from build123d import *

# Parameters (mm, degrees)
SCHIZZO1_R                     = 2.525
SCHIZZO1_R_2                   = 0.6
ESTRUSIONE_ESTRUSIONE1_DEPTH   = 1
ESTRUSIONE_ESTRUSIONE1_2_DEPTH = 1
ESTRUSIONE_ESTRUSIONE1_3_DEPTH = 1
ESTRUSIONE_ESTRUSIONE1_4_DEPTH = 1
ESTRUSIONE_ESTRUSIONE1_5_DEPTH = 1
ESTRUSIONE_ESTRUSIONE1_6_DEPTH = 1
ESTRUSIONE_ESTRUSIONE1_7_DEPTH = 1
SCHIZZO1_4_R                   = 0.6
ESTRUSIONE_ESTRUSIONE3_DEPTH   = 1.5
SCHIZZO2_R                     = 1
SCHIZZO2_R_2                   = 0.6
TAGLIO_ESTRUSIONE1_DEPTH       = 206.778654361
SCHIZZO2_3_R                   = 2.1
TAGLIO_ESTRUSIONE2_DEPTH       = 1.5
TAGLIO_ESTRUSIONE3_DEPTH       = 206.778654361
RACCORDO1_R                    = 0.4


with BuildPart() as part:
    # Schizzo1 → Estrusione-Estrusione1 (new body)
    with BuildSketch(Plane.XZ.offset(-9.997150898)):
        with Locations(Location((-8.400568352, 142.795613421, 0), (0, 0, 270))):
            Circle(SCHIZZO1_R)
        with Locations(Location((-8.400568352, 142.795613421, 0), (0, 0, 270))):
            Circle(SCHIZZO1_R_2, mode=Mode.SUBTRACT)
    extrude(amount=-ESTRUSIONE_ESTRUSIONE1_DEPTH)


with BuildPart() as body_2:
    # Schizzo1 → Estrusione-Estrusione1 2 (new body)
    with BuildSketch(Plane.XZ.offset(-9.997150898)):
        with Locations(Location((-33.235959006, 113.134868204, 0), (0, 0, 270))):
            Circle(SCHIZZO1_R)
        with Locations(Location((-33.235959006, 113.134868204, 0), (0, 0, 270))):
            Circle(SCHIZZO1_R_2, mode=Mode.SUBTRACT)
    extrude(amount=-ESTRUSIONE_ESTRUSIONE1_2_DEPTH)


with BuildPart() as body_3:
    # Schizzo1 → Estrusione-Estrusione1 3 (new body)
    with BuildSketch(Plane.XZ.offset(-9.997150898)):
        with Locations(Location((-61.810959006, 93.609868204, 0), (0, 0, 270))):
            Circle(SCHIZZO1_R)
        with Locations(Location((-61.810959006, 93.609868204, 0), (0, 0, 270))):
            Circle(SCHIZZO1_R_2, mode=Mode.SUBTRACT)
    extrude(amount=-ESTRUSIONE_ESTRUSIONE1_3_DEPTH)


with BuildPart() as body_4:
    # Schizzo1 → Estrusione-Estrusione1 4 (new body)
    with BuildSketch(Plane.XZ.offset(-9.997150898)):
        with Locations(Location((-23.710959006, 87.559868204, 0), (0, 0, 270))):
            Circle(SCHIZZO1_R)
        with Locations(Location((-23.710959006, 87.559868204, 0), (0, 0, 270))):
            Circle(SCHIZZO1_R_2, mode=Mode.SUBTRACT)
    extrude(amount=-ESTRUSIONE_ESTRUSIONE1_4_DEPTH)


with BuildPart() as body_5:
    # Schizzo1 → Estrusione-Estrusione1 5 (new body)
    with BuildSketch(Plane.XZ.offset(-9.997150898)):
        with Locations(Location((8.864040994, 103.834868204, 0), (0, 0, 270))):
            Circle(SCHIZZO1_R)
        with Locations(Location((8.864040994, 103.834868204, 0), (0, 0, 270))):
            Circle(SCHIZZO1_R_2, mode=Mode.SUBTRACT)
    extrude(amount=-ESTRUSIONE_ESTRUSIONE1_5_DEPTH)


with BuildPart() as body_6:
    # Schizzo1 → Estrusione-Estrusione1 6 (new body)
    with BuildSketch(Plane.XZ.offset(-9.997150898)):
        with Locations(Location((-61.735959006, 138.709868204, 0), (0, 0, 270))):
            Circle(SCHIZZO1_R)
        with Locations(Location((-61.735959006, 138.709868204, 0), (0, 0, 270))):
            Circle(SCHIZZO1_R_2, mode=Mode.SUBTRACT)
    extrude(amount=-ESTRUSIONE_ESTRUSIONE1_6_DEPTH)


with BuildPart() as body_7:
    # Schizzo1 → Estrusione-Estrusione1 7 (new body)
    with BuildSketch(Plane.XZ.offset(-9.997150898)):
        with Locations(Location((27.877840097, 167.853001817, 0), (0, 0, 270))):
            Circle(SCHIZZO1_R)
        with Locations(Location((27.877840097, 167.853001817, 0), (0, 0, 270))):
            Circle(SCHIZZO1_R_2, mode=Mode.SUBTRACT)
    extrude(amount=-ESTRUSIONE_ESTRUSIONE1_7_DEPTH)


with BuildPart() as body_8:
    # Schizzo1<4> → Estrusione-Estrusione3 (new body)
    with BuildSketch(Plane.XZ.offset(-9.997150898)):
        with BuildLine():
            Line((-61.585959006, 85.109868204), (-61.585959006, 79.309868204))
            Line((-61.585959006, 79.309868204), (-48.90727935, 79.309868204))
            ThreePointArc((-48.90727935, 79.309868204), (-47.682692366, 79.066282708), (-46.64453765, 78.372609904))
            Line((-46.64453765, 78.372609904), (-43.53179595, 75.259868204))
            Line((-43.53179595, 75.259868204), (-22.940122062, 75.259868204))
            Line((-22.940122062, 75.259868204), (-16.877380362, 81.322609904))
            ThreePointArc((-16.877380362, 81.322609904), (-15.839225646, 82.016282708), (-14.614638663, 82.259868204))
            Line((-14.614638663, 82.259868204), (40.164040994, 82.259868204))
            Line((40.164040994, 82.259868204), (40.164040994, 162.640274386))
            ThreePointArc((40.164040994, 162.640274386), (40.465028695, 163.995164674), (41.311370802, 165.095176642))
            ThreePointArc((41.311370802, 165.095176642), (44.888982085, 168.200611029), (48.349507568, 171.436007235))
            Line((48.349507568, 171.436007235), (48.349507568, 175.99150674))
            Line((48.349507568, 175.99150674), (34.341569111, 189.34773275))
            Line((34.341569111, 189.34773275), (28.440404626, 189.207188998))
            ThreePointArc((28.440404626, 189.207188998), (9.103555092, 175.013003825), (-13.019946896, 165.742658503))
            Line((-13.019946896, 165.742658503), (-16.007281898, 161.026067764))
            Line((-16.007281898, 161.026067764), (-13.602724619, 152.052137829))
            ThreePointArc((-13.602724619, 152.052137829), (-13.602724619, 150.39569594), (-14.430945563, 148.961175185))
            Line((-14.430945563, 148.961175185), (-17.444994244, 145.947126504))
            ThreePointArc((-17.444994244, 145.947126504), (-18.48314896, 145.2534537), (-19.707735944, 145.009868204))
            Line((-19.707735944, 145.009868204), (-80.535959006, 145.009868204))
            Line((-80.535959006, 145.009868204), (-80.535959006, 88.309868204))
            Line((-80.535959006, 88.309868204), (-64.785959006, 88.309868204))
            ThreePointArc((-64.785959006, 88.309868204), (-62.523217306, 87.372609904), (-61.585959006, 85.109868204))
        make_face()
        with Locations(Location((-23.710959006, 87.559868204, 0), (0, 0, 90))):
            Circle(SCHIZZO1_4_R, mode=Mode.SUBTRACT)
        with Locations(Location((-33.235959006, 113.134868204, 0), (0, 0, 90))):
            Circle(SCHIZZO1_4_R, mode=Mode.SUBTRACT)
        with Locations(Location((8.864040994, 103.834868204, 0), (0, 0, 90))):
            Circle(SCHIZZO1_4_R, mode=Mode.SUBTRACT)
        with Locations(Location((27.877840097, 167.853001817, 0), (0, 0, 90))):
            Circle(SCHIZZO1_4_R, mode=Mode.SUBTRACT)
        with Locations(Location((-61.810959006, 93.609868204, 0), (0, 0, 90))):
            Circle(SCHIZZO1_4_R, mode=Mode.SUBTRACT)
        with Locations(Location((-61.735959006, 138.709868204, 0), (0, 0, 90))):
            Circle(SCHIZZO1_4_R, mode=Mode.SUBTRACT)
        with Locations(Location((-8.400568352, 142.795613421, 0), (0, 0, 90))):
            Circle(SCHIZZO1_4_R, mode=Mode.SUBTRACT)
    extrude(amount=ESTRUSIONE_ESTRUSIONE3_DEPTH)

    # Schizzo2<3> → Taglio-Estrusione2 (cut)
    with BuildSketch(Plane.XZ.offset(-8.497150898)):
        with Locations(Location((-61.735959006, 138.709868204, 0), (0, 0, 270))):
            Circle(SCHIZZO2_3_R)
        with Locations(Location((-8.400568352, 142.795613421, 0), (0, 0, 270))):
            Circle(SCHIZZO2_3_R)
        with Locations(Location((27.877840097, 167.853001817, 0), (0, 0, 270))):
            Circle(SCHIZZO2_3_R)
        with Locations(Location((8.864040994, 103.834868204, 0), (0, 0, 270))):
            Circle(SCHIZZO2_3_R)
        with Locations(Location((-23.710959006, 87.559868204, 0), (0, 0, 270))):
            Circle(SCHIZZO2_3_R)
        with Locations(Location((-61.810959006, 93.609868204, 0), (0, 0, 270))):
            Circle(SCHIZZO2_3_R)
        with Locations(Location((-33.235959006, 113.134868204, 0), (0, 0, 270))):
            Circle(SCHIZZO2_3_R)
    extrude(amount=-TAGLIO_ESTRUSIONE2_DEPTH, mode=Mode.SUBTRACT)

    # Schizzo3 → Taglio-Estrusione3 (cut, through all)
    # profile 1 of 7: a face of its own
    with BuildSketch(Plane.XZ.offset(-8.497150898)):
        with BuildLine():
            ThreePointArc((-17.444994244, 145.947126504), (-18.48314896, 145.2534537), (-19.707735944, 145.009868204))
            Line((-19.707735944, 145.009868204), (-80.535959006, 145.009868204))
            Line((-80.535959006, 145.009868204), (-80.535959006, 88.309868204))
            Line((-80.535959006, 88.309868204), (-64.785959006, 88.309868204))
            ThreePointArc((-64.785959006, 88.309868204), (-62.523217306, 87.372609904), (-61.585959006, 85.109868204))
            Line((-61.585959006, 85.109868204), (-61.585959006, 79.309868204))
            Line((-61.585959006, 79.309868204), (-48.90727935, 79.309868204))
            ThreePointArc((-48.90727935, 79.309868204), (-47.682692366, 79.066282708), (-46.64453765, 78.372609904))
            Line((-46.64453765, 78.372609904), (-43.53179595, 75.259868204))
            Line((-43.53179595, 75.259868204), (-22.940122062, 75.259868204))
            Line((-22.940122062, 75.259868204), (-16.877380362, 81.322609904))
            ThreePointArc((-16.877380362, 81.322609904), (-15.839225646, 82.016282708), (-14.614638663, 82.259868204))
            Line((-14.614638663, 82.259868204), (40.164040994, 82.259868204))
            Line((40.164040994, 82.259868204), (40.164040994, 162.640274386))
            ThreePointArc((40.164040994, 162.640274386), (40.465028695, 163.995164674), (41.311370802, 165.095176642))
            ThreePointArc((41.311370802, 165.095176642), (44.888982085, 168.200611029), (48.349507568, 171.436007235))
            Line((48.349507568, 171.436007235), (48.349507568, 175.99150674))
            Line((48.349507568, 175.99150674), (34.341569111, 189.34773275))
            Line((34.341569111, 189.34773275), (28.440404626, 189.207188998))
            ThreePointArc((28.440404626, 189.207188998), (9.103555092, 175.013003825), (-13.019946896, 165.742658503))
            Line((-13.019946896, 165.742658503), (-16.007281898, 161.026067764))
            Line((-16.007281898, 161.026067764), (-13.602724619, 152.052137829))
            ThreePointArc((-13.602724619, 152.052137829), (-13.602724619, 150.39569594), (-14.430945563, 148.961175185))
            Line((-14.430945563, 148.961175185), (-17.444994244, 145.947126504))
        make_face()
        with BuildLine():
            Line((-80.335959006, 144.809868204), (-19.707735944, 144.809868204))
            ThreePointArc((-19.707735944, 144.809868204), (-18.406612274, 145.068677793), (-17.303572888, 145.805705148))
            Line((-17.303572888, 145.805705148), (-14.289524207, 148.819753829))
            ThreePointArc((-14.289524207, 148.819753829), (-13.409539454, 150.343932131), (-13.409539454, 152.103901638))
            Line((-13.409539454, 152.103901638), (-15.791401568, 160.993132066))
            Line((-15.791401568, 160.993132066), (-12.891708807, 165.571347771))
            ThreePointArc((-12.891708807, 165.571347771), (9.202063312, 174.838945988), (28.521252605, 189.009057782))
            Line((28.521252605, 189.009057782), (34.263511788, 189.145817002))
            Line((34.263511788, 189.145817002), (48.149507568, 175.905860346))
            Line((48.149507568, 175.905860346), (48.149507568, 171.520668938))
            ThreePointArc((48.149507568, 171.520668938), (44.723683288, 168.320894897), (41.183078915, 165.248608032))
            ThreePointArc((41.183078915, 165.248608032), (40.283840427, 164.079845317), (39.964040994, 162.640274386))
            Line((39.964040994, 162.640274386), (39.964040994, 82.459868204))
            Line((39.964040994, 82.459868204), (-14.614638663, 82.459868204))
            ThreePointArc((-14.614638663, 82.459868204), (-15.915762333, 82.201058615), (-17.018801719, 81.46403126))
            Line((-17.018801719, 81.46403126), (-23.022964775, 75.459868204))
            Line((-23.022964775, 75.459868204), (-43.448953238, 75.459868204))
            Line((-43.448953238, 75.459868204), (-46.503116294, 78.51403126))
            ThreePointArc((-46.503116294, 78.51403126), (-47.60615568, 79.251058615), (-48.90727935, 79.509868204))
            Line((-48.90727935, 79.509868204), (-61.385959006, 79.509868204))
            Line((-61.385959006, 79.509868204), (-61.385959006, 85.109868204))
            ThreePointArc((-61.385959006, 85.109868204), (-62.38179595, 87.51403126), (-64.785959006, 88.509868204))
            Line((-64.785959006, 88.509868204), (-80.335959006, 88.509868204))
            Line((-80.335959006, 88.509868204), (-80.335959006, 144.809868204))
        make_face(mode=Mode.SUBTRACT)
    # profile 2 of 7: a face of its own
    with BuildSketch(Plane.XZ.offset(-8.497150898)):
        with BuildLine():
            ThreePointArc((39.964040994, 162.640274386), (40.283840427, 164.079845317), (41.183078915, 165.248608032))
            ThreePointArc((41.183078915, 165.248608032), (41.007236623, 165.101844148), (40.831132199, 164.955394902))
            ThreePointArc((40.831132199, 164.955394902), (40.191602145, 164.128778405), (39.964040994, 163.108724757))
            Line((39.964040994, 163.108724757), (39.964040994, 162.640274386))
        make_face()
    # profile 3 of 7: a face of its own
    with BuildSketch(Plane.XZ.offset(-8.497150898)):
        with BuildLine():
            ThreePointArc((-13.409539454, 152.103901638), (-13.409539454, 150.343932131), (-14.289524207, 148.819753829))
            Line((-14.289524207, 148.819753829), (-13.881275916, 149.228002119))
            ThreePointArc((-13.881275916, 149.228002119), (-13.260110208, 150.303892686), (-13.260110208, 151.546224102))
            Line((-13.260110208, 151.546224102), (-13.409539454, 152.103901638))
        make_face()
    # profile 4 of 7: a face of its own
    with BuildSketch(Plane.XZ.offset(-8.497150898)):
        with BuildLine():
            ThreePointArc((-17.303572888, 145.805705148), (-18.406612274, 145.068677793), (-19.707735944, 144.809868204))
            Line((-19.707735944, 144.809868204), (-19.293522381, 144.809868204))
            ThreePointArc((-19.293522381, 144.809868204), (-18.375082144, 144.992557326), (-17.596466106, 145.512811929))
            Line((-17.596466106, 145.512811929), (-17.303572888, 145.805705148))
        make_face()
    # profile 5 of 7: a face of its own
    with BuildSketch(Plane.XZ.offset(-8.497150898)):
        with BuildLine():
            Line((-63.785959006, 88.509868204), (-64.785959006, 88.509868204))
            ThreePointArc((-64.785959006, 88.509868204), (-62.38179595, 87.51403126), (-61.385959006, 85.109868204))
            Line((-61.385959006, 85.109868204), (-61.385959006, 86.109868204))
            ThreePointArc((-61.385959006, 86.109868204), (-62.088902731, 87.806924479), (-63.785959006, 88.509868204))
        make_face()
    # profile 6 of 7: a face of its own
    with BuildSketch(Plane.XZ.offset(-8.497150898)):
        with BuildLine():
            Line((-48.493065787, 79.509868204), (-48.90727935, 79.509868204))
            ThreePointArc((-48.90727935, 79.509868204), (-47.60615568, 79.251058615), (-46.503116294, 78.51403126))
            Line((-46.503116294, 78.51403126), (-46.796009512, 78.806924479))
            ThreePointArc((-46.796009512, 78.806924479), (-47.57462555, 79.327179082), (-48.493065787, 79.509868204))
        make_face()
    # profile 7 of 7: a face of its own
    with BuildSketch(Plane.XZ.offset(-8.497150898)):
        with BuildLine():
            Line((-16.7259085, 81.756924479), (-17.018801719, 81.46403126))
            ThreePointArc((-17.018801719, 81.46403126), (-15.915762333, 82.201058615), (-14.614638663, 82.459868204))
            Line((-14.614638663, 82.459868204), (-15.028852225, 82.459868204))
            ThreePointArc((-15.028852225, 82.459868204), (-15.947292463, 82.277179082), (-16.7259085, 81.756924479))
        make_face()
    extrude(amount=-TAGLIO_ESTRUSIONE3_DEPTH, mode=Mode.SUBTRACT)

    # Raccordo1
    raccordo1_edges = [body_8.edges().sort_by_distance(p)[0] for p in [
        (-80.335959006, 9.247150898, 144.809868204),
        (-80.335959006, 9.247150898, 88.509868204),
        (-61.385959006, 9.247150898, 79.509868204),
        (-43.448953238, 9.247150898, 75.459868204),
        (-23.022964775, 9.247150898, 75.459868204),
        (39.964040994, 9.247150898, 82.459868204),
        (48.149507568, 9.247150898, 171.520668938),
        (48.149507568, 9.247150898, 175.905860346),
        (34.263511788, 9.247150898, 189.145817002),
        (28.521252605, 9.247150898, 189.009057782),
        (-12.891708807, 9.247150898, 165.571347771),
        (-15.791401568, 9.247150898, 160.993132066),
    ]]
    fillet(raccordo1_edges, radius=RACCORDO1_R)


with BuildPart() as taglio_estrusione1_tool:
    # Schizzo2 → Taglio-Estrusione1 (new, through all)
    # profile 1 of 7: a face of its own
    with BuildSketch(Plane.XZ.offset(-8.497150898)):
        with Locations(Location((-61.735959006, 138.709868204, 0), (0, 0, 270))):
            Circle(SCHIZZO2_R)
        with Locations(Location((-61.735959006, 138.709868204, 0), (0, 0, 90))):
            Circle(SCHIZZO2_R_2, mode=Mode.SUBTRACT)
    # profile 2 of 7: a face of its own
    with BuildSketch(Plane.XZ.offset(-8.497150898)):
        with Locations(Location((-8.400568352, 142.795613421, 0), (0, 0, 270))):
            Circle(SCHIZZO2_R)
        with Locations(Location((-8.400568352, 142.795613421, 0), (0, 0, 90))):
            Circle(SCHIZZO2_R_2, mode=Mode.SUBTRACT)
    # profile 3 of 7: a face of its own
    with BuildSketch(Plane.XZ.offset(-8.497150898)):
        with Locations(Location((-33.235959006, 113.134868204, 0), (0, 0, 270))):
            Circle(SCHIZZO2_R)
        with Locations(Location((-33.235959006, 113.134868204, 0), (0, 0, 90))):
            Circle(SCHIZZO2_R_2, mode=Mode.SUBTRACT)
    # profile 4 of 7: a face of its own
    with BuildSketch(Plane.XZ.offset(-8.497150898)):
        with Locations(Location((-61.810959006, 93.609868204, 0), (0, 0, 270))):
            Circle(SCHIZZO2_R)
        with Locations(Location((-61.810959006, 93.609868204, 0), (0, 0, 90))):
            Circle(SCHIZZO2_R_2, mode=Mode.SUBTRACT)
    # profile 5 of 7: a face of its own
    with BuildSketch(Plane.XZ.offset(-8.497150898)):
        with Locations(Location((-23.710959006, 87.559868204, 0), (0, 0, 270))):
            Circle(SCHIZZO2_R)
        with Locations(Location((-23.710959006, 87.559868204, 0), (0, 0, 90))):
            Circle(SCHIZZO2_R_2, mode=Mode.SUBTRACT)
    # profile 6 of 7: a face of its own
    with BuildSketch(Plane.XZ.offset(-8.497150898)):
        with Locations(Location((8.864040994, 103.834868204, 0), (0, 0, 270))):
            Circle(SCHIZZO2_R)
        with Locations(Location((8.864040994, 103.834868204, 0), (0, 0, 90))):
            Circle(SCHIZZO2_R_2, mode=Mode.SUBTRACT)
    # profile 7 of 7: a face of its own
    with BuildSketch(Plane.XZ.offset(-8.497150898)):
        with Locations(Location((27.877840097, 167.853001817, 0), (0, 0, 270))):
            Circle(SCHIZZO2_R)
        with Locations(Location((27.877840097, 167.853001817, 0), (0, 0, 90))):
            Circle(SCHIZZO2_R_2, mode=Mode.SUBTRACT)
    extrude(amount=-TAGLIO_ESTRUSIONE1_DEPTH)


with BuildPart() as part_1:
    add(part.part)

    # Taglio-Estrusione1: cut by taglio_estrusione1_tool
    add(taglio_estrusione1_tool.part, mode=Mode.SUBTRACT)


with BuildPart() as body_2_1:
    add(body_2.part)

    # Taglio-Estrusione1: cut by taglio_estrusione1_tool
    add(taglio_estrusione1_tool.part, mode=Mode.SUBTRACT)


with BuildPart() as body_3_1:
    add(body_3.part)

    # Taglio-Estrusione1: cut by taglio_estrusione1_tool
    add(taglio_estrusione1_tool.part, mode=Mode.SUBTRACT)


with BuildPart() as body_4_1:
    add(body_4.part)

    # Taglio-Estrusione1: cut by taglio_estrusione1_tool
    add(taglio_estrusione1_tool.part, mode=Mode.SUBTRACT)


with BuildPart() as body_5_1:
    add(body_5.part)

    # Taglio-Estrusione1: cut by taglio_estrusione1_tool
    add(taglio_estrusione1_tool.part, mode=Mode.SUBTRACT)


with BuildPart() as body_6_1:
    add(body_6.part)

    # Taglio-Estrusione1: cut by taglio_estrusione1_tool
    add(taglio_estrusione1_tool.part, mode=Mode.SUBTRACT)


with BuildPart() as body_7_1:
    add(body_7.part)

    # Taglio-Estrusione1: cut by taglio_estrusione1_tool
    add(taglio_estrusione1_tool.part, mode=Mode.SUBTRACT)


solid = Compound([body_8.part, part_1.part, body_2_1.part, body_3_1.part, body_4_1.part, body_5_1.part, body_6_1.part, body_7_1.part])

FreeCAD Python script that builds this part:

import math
import FreeCAD as App
import Part
import Sketcher
Q = App.Units.Quantity


def edges_at(feature, points):
    """Names of the edges that pass closest to the given points."""
    edges = feature.Shape.Edges
    near = lambda p: min(range(len(edges)), key=lambda i: edges[i].distToShape(Part.Vertex(*p))[0])
    return sorted({f"Edge{near(p) + 1}" for p in points})

doc = App.newDocument("Part")
body = doc.addObject("PartDesign::Body", "Body")

sketch1 = body.newObject("Sketcher::SketchObject", "Sketch")
sketch1.AttachmentSupport = (doc.getObject("XZ_Plane"), [""])
sketch1.MapMode = "FlatFace"
sketch1.AttachmentOffset = App.Placement(App.Vector(0, 0, -9.997151), App.Rotation())
sketch1.addGeometry([
    Part.Circle(App.Vector(-8.4, 142.8, 0), App.Vector(0, 0, 1), 2.5),
    Part.Circle(App.Vector(-8.4, 142.8, 0), App.Vector(0, 0, 1), 0.6),
], False)
sketch1.addConstraint([
    Sketcher.Constraint("Coincident", 1, 3, 0, 3),
    Sketcher.Constraint("Diameter", 1, 1.2),
    Sketcher.Constraint("Diameter", 0, 5.05),
    Sketcher.Constraint("DistanceX", 0, 3, -1, 1, 8.400568),
    Sketcher.Constraint("DistanceY", -1, 1, 0, 3, 142.795613),
])
pad1 = body.newObject("PartDesign::Pad", "Pad")
pad1.Profile = sketch1
pad1.Length = 1
pad1.Reversed = True
body2 = doc.addObject("PartDesign::Body", "Body001")

sketch2 = body2.newObject("Sketcher::SketchObject", "Sketch001")
sketch2.AttachmentSupport = (doc.getObject("XZ_Plane001"), [""])
sketch2.MapMode = "FlatFace"
sketch2.AttachmentOffset = App.Placement(App.Vector(0, 0, -9.997151), App.Rotation())
sketch2.addGeometry([
    Part.Circle(App.Vector(-33.2, 113.1, 0), App.Vector(0, 0, 1), 2.5),
    Part.Circle(App.Vector(-33.2, 113.1, 0), App.Vector(0, 0, 1), 0.6),
], False)
sketch2.addConstraint([
    Sketcher.Constraint("Coincident", 1, 3, 0, 3),
    Sketcher.Constraint("Diameter", 1, 1.2),
    Sketcher.Constraint("Diameter", 0, 5.05),
    Sketcher.Constraint("DistanceX", 0, 3, -1, 1, 33.235959),
    Sketcher.Constraint("DistanceY", -1, 1, 0, 3, 113.134868),
])
pad2 = body2.newObject("PartDesign::Pad", "Pad001")
pad2.Profile = sketch2
pad2.Length = 1
pad2.Reversed = True
body3 = doc.addObject("PartDesign::Body", "Body002")

sketch3 = body3.newObject("Sketcher::SketchObject", "Sketch002")
sketch3.AttachmentSupport = (doc.getObject("XZ_Plane002"), [""])
sketch3.MapMode = "FlatFace"
sketch3.AttachmentOffset = App.Placement(App.Vector(0, 0, -9.997151), App.Rotation())
sketch3.addGeometry([
    Part.Circle(App.Vector(-61.8, 93.6, 0), App.Vector(0, 0, 1), 2.5),
    Part.Circle(App.Vector(-61.8, 93.6, 0), App.Vector(0, 0, 1), 0.6),
], False)
sketch3.addConstraint([
    Sketcher.Constraint("Coincident", 1, 3, 0, 3),
    Sketcher.Constraint("Diameter", 1, 1.2),
    Sketcher.Constraint("Diameter", 0, 5.05),
    Sketcher.Constraint("DistanceX", 0, 3, -1, 1, 61.810959),
    Sketcher.Constraint("DistanceY", -1, 1, 0, 3, 93.609868),
])
pad3 = body3.newObject("PartDesign::Pad", "Pad002")
pad3.Profile = sketch3
pad3.Length = 1
pad3.Reversed = True
body4 = doc.addObject("PartDesign::Body", "Body003")

sketch4 = body4.newObject("Sketcher::SketchObject", "Sketch003")
sketch4.AttachmentSupport = (doc.getObject("XZ_Plane003"), [""])
sketch4.MapMode = "FlatFace"
sketch4.AttachmentOffset = App.Placement(App.Vector(0, 0, -9.997151), App.Rotation())
sketch4.addGeometry([
    Part.Circle(App.Vector(-23.7, 87.6, 0), App.Vector(0, 0, 1), 2.5),
    Part.Circle(App.Vector(-23.7, 87.6, 0), App.Vector(0, 0, 1), 0.6),
], False)
sketch4.addConstraint([
    Sketcher.Constraint("Coincident", 1, 3, 0, 3),
    Sketcher.Constraint("Diameter", 1, 1.2),
    Sketcher.Constraint("Diameter", 0, 5.05),
    Sketcher.Constraint("DistanceX", 0, 3, -1, 1, 23.710959),
    Sketcher.Constraint("DistanceY", -1, 1, 0, 3, 87.559868),
])
pad4 = body4.newObject("PartDesign::Pad", "Pad003")
pad4.Profile = sketch4
pad4.Length = 1
pad4.Reversed = True
body5 = doc.addObject("PartDesign::Body", "Body004")

sketch5 = body5.newObject("Sketcher::SketchObject", "Sketch004")
sketch5.AttachmentSupport = (doc.getObject("XZ_Plane004"), [""])
sketch5.MapMode = "FlatFace"
sketch5.AttachmentOffset = App.Placement(App.Vector(0, 0, -9.997151), App.Rotation())
sketch5.addGeometry([
    Part.Circle(App.Vector(8.9, 103.8, 0), App.Vector(0, 0, 1), 2.5),
    Part.Circle(App.Vector(8.9, 103.8, 0), App.Vector(0, 0, 1), 0.6),
], False)
sketch5.addConstraint([
    Sketcher.Constraint("Coincident", 1, 3, 0, 3),
    Sketcher.Constraint("Diameter", 1, 1.2),
    Sketcher.Constraint("Diameter", 0, 5.05),
    Sketcher.Constraint("DistanceX", -1, 1, 0, 3, 8.864041),
    Sketcher.Constraint("DistanceY", -1, 1, 0, 3, 103.834868),
])
pad5 = body5.newObject("PartDesign::Pad", "Pad004")
pad5.Profile = sketch5
pad5.Length = 1
pad5.Reversed = True
body6 = doc.addObject("PartDesign::Body", "Body005")

sketch6 = body6.newObject("Sketcher::SketchObject", "Sketch005")
sketch6.AttachmentSupport = (doc.getObject("XZ_Plane005"), [""])
sketch6.MapMode = "FlatFace"
sketch6.AttachmentOffset = App.Placement(App.Vector(0, 0, -9.997151), App.Rotation())
sketch6.addGeometry([
    Part.Circle(App.Vector(-61.7, 138.7, 0), App.Vector(0, 0, 1), 2.5),
    Part.Circle(App.Vector(-61.7, 138.7, 0), App.Vector(0, 0, 1), 0.6),
], False)
sketch6.addConstraint([
    Sketcher.Constraint("Coincident", 1, 3, 0, 3),
    Sketcher.Constraint("Diameter", 1, 1.2),
    Sketcher.Constraint("Diameter", 0, 5.05),
    Sketcher.Constraint("DistanceX", 0, 3, -1, 1, 61.735959),
    Sketcher.Constraint("DistanceY", -1, 1, 0, 3, 138.709868),
])
pad6 = body6.newObject("PartDesign::Pad", "Pad005")
pad6.Profile = sketch6
pad6.Length = 1
pad6.Reversed = True
body7 = doc.addObject("PartDesign::Body", "Body006")

sketch7 = body7.newObject("Sketcher::SketchObject", "Sketch006")
sketch7.AttachmentSupport = (doc.getObject("XZ_Plane006"), [""])
sketch7.MapMode = "FlatFace"
sketch7.AttachmentOffset = App.Placement(App.Vector(0, 0, -9.997151), App.Rotation())
sketch7.addGeometry([
    Part.Circle(App.Vector(27.9, 167.9, 0), App.Vector(0, 0, 1), 2.5),
    Part.Circle(App.Vector(27.9, 167.9, 0), App.Vector(0, 0, 1), 0.6),
], False)
sketch7.addConstraint([
    Sketcher.Constraint("Coincident", 1, 3, 0, 3),
    Sketcher.Constraint("Diameter", 1, 1.2),
    Sketcher.Constraint("Diameter", 0, 5.05),
    Sketcher.Constraint("DistanceY", -1, 1, 0, 3, 167.853002),
    Sketcher.Constraint("DistanceX", -1, 1, 0, 3, 27.87784),
])
pad7 = body7.newObject("PartDesign::Pad", "Pad006")
pad7.Profile = sketch7
pad7.Length = 1
pad7.Reversed = True
body8 = doc.addObject("PartDesign::Body", "Body007")

sketch8 = body8.newObject("Sketcher::SketchObject", "Sketch007")
sketch8.AttachmentSupport = (doc.getObject("XZ_Plane007"), [""])
sketch8.MapMode = "FlatFace"
sketch8.AttachmentOffset = App.Placement(App.Vector(0, 0, -9.997151), App.Rotation())
sketch8.addGeometry([
    Part.LineSegment(App.Vector(-61.6, 85.1, 0), App.Vector(-61.6, 79.3, 0)),
    Part.LineSegment(App.Vector(-61.6, 79.3, 0), App.Vector(-48.9, 79.3, 0)),
    Part.ArcOfCircle(Part.Circle(App.Vector(-48.9, 76.1, 0), App.Vector(0, 0, 1), 3.2), math.radians(45), math.radians(90)),
    Part.LineSegment(App.Vector(-46.6, 78.4, 0), App.Vector(-43.5, 75.3, 0)),
    Part.LineSegment(App.Vector(-43.5, 75.3, 0), App.Vector(-22.9, 75.3, 0)),
    Part.LineSegment(App.Vector(-22.9, 75.3, 0), App.Vector(-16.9, 81.3, 0)),
    Part.ArcOfCircle(Part.Circle(App.Vector(-14.6, 79.1, 0), App.Vector(0, 0, 1), 3.2), math.radians(90), math.radians(135)),
    Part.LineSegment(App.Vector(-14.6, 82.3, 0), App.Vector(40.2, 82.3, 0)),
    Part.LineSegment(App.Vector(40.2, 82.3, 0), App.Vector(40.2, 162.6, 0)),
    Part.ArcOfCircle(Part.Circle(App.Vector(43.4, 162.6, 0), App.Vector(0, 0, 1), 3.2), math.radians(130), math.radians(180)),
    Part.ArcOfCircle(Part.Circle(App.Vector(-41, 263.5, 0), App.Vector(0, 0, 1), 128.3), math.radians(-50.1), math.radians(-45.87)),
    Part.LineSegment(App.Vector(48.3, 171.4, 0), App.Vector(48.3, 176, 0)),
    Part.LineSegment(App.Vector(48.3, 176, 0), App.Vector(34.3, 189.3, 0)),
    Part.LineSegment(App.Vector(34.3, 189.3, 0), App.Vector(28.4, 189.2, 0)),
    Part.ArcOfCircle(Part.Circle(App.Vector(-41, 263.5, 0), App.Vector(0, 0, 1), 101.7), math.radians(-74), math.radians(-47)),
    Part.LineSegment(App.Vector(-13, 165.7, 0), App.Vector(-16, 161, 0)),
    Part.LineSegment(App.Vector(-16, 161, 0), App.Vector(-13.6, 152.1, 0)),
    Part.ArcOfCircle(Part.Circle(App.Vector(-16.7, 151.2, 0), App.Vector(0, 0, 1), 3.2), math.radians(-45), math.radians(15)),
    Part.LineSegment(App.Vector(-14.4, 149, 0), App.Vector(-17.4, 145.9, 0)),
    Part.ArcOfCircle(Part.Circle(App.Vector(-19.7, 148.2, 0), App.Vector(0, 0, 1), 3.2), math.radians(-90), math.radians(-45)),
    Part.LineSegment(App.Vector(-19.7, 145, 0), App.Vector(-80.5, 145, 0)),
    Part.LineSegment(App.Vector(-80.5, 145, 0), App.Vector(-80.5, 88.3, 0)),
    Part.LineSegment(App.Vector(-80.5, 88.3, 0), App.Vector(-64.8, 88.3, 0)),
    Part.ArcOfCircle(Part.Circle(App.Vector(-64.8, 85.1, 0), App.Vector(0, 0, 1), 3.2), math.radians(0), math.radians(90)),
    Part.Circle(App.Vector(-61.8, 93.6, 0), App.Vector(0, 0, 1), 0.6),
    Part.Circle(App.Vector(-23.7, 87.6, 0), App.Vector(0, 0, 1), 0.6),
    Part.Circle(App.Vector(-33.2, 113.1, 0), App.Vector(0, 0, 1), 0.6),
    Part.Circle(App.Vector(8.9, 103.8, 0), App.Vector(0, 0, 1), 0.6),
    Part.Circle(App.Vector(-61.7, 138.7, 0), App.Vector(0, 0, 1), 0.6),
    Part.Circle(App.Vector(-8.4, 142.8, 0), App.Vector(0, 0, 1), 0.6),
    Part.Circle(App.Vector(27.9, 167.9, 0), App.Vector(0, 0, 1), 0.6),
], False)
sketch8.addConstraint([
    Sketcher.Constraint("Coincident", 0, 2, 1, 1),
    Sketcher.Constraint("Tangent", 1, 2, 2, 2),
    Sketcher.Constraint("Tangent", 2, 1, 3, 1),
    Sketcher.Constraint("Coincident", 3, 2, 4, 1),
    Sketcher.Constraint("Coincident", 4, 2, 5, 1),
    Sketcher.Constraint("Tangent", 5, 2, 6, 2),
    Sketcher.Constraint("Tangent", 6, 1, 7, 1),
    Sketcher.Constraint("Coincident", 7, 2, 8, 1),
    Sketcher.Constraint("Tangent", 8, 2, 9, 2),
    Sketcher.Constraint("Tangent", 9, 1, 10, 1),
    Sketcher.Constraint("Coincident", 10, 2, 11, 1),
    Sketcher.Constraint("Coincident", 11, 2, 12, 1),
    Sketcher.Constraint("Coincident", 12, 2, 13, 1),
    Sketcher.Constraint("Coincident", 13, 2, 14, 2),
    Sketcher.Constraint("Coincident", 14, 1, 15, 1),
    Sketcher.Constraint("Coincident", 15, 2, 16, 1),
    Sketcher.Constraint("Tangent", 16, 2, 17, 2),
    Sketcher.Constraint("Tangent", 17, 1, 18, 1),
    Sketcher.Constraint("Tangent", 18, 2, 19, 2),
    Sketcher.Constraint("Tangent", 19, 1, 20, 1),
    Sketcher.Constraint("Coincident", 20, 2, 21, 1),
    Sketcher.Constraint("Coincident", 21, 2, 22, 1),
    Sketcher.Constraint("Tangent", 22, 2, 23, 2),
    Sketcher.Constraint("Tangent", 23, 1, 0, 1),
    Sketcher.Constraint("Vertical", 0),
    Sketcher.Constraint("Horizontal", 1),
    Sketcher.Constraint("Horizontal", 4),
    Sketcher.Constraint("Horizontal", 7),
    Sketcher.Constraint("Vertical", 8),
    Sketcher.Constraint("Vertical", 11),
    Sketcher.Constraint("Horizontal", 20),
    Sketcher.Constraint("Vertical", 21),
    Sketcher.Constraint("Horizontal", 22),
    Sketcher.Constraint("Coincident", 14, 3, 10, 3),
    Sketcher.Constraint("Equal", 2, 6),
    Sketcher.Constraint("Equal", 6, 9),
    Sketcher.Constraint("Equal", 9, 17),
    Sketcher.Constraint("Equal", 17, 19),
    Sketcher.Constraint("Equal", 19, 23),
    Sketcher.Constraint("Equal", 24, 25),
    Sketcher.Constraint("Equal", 25, 26),
    Sketcher.Constraint("Equal", 26, 27),
    Sketcher.Constraint("Equal", 27, 28),
    Sketcher.Constraint("Equal", 28, 29),
    Sketcher.Constraint("Equal", 29, 30),
    Sketcher.Constraint("Perpendicular", 3, 5),
    Sketcher.Constraint("Parallel", 5, 18),
    Sketcher.Constraint("Diameter", 24, 1.2),
    Sketcher.Constraint("Radius", 2, 3.2),
    Sketcher.Constraint("Radius", 10, 128.299999),
    Sketcher.Constraint("Radius", 14, 101.7),
    Sketcher.Constraint("Angle", 3, Q("-45 deg")),
    Sketcher.Constraint("Angle", 16, Q("-75 deg")),
    Sketcher.Constraint("DistanceY", 0, 2, 0, 1, 5.8),
    Sketcher.Constraint("DistanceY", 21, 2, 21, 1, 56.7),
    Sketcher.Constraint("DistanceY", 4, 2, 6, 1, 7.0),
    Sketcher.Constraint("DistanceX", 22, 1, 22, 2, 15.75),
    Sketcher.Constraint("DistanceY", 23, 3, 24, 3, 8.5),
    Sketcher.Constraint("DistanceY", 6, 3, 25, 3, 8.5),
    Sketcher.Constraint("DistanceX", 24, 3, 25, 3, 38.1),
    Sketcher.Constraint("DistanceX", 26, 3, 27, 3, 42.1),
    Sketcher.Constraint("DistanceY", 27, 3, 26, 3, 9.3),
    Sketcher.Constraint("DistanceX", 28, 3, 26, 3, 28.5),
    Sketcher.Constraint("DistanceY", 28, 3, 19, 3, 9.5),
    Sketcher.Constraint("DistanceX", 27, 3, 7, 2, 31.3),
    Sketcher.Constraint("DistanceX", 20, 2, 28, 3, 18.8),
    Sketcher.Constraint("DistanceY", 2, 3, 6, 3, 2.95),
    Sketcher.Constraint("DistanceY", 11, 1, 11, 2, 4.5555),
    Sketcher.Constraint("DistanceY", -1, 1, 30, 3, 167.853002),
    Sketcher.Constraint("DistanceX", 23, 3, 24, 3, 2.975),
    Sketcher.Constraint("DistanceY", 25, 3, 26, 3, 25.575),
    Sketcher.Constraint("DistanceX", 1, 1, 1, 2, 12.67868),
    Sketcher.Constraint("DistanceX", 7, 1, 7, 2, 54.77868),
    Sketcher.Constraint("DistanceX", 30, 3, 9, 3, 15.486201),
    Sketcher.Constraint("DistanceX", 12, 2, 9, 1, 6.969802),
    Sketcher.Constraint("DistanceY", 19, 3, 15, 2, 12.8162),
    Sketcher.Constraint("Distance", 18, 4.262509),
    Sketcher.Constraint("DistanceX", 20, 2, 20, 1, 60.828223),
    Sketcher.Constraint("DistanceY", 8, 1, 8, 2, 80.380406),
    Sketcher.Constraint("DistanceX", 2, 3, -1, 1, 48.907279),
    Sketcher.Constraint("DistanceY", -1, 1, 2, 3, 76.109868),
    Sketcher.Constraint("DistanceX", 29, 3, -1, 1, 8.400568),
    Sketcher.Constraint("DistanceX", -1, 1, 9, 1, 41.311371),
    Sketcher.Constraint("DistanceY", -1, 1, 13, 2, 189.207189),
    Sketcher.Constraint("DistanceY", -1, 1, 14, 1, 165.742659),
    Sketcher.Constraint("DistanceY", 29, 3, 30, 3, 25.057388),
    Sketcher.Constraint("DistanceY", 9, 1, 10, 2, 6.340831),
    Sketcher.Constraint("DistanceY", 30, 3, 12, 2, 21.494731),
])
pad8 = body8.newObject("PartDesign::Pad", "Pad007")
pad8.Profile = sketch8
pad8.Length = 1.5

sketch9 = body8.newObject("Sketcher::SketchObject", "Sketch008")
sketch9.AttachmentSupport = (doc.getObject("XZ_Plane007"), [""])
sketch9.MapMode = "FlatFace"
sketch9.AttachmentOffset = App.Placement(App.Vector(0, 0, -8.497151), App.Rotation())
sketch9.addGeometry([
    Part.Circle(App.Vector(-61.7, 138.7, 0), App.Vector(0, 0, 1), 2.1),
    Part.Circle(App.Vector(-8.4, 142.8, 0), App.Vector(0, 0, 1), 2.1),
    Part.Circle(App.Vector(27.9, 167.9, 0), App.Vector(0, 0, 1), 2.1),
    Part.Circle(App.Vector(8.9, 103.8, 0), App.Vector(0, 0, 1), 2.1),
    Part.Circle(App.Vector(-23.7, 87.6, 0), App.Vector(0, 0, 1), 2.1),
    Part.Circle(App.Vector(-61.8, 93.6, 0), App.Vector(0, 0, 1), 2.1),
    Part.Circle(App.Vector(-33.2, 113.1, 0), App.Vector(0, 0, 1), 2.1),
], False)
sketch9.addConstraint([
    Sketcher.Constraint("Equal", 0, 1),
    Sketcher.Constraint("Equal", 1, 2),
    Sketcher.Constraint("Equal", 2, 3),
    Sketcher.Constraint("Equal", 3, 4),
    Sketcher.Constraint("Equal", 4, 5),
    Sketcher.Constraint("Equal", 5, 6),
    Sketcher.Constraint("Diameter", 0, 4.2),
    Sketcher.Constraint("DistanceX", 0, 3, 3, 3, 70.6),
    Sketcher.Constraint("DistanceX", 5, 3, 4, 3, 38.1),
    Sketcher.Constraint("DistanceY", 5, 3, 0, 3, 45.1),
    Sketcher.Constraint("DistanceX", 0, 3, 6, 3, 28.5),
    Sketcher.Constraint("DistanceY", 3, 3, 6, 3, 9.3),
    Sketcher.Constraint("DistanceY", 4, 3, 0, 3, 51.15),
    Sketcher.Constraint("DistanceY", -1, 1, 2, 3, 167.853002),
    Sketcher.Constraint("DistanceY", 3, 3, 0, 3, 34.875),
    Sketcher.Constraint("DistanceX", 4, 3, 3, 3, 32.575),
    Sketcher.Constraint("DistanceX", 0, 3, 2, 3, 89.613799),
    Sketcher.Constraint("DistanceX", 0, 3, -1, 1, 61.735959),
    Sketcher.Constraint("DistanceY", -1, 1, 0, 3, 138.709868),
    Sketcher.Constraint("DistanceX", 1, 3, -1, 1, 8.400568),
    Sketcher.Constraint("DistanceY", 1, 3, 2, 3, 25.057388),
])
pocket1 = body8.newObject("PartDesign::Pocket", "Pocket")
pocket1.Profile = sketch9
pocket1.Length = 1.5

sketch10 = body8.newObject("Sketcher::SketchObject", "Sketch009")
sketch10.AttachmentSupport = (doc.getObject("XZ_Plane007"), [""])
sketch10.MapMode = "FlatFace"
sketch10.AttachmentOffset = App.Placement(App.Vector(0, 0, -8.497151), App.Rotation())
sketch10.addGeometry([
    Part.ArcOfCircle(Part.Circle(App.Vector(-19.707736, 148.209868, 0), App.Vector(0, 0, 1), 3.2), math.radians(-90), math.radians(-45)),
    Part.LineSegment(App.Vector(-19.707736, 145.009868, 0), App.Vector(-80.535959, 145.009868, 0)),
    Part.LineSegment(App.Vector(-80.535959, 145.009868, 0), App.Vector(-80.535959, 88.309868, 0)),
    Part.LineSegment(App.Vector(-80.535959, 88.309868, 0), App.Vector(-64.785959, 88.309868, 0)),
    Part.ArcOfCircle(Part.Circle(App.Vector(-64.785959, 85.109868, 0), App.Vector(0, 0, 1), 3.2), math.radians(0), math.radians(90)),
    Part.LineSegment(App.Vector(-61.585959, 85.109868, 0), App.Vector(-61.585959, 79.309868, 0)),
    Part.LineSegment(App.Vector(-61.585959, 79.309868, 0), App.Vector(-48.907279, 79.309868, 0)),
    Part.ArcOfCircle(Part.Circle(App.Vector(-48.907279, 76.109868, 0), App.Vector(0, 0, 1), 3.2), math.radians(45), math.radians(90)),
    Part.LineSegment(App.Vector(-46.644538, 78.37261, 0), App.Vector(-43.531796, 75.259868, 0)),
    Part.LineSegment(App.Vector(-43.531796, 75.259868, 0), App.Vector(-22.940122, 75.259868, 0)),
    Part.LineSegment(App.Vector(-22.940122, 75.259868, 0), App.Vector(-16.87738, 81.32261, 0)),
    Part.ArcOfCircle(Part.Circle(App.Vector(-14.614639, 79.059868, 0), App.Vector(0, 0, 1), 3.2), math.radians(90), math.radians(135)),
    Part.LineSegment(App.Vector(-14.614639, 82.259868, 0), App.Vector(40.164041, 82.259868, 0)),
    Part.LineSegment(App.Vector(40.164041, 82.259868, 0), App.Vector(40.164041, 162.640274, 0)),
    Part.ArcOfCircle(Part.Circle(App.Vector(43.364041, 162.640274, 0), App.Vector(0, 0, 1), 3.2), math.radians(129.900732), math.radians(180)),
    Part.ArcOfCircle(Part.Circle(App.Vector(-40.987874, 263.521413, 0), App.Vector(0, 0, 1), 128.299999), math.radians(-50.099268), math.radians(-45.867797)),
    Part.LineSegment(App.Vector(48.349508, 171.436007, 0), App.Vector(48.349508, 175.991507, 0)),
    Part.LineSegment(App.Vector(48.349508, 175.991507, 0), App.Vector(34.341569, 189.347733, 0)),
    Part.LineSegment(App.Vector(34.341569, 189.347733, 0), App.Vector(28.440405, 189.207189, 0)),
    Part.ArcOfCircle(Part.Circle(App.Vector(-40.987875, 263.521414, 0), App.Vector(0, 0, 1), 101.7), math.radians(-74.037735), math.radians(-46.946789)),
    Part.LineSegment(App.Vector(-13.019947, 165.742659, 0), App.Vector(-16.007282, 161.026068, 0)),
    Part.LineSegment(App.Vector(-16.007282, 161.026068, 0), App.Vector(-13.602725, 152.052138, 0)),
    Part.ArcOfCircle(Part.Circle(App.Vector(-16.693687, 151.223917, 0), App.Vector(0, 0, 1), 3.2), math.radians(-45), math.radians(15)),
    Part.LineSegment(App.Vector(-14.430946, 148.961175, 0), App.Vector(-17.444994, 145.947127, 0)),
    Part.LineSegment(App.Vector(-80.335959, 88.509868, 0), App.Vector(-80.335959, 144.809868, 0)),
    Part.LineSegment(App.Vector(-80.335959, 144.809868, 0), App.Vector(-19.293522, 144.809868, 0)),
    Part.ArcOfCircle(Part.Circle(App.Vector(-19.293522, 147.209868, 0), App.Vector(0, 0, 1), 2.4), math.radians(-90), math.radians(-45)),
    Part.LineSegment(App.Vector(-17.596466, 145.512812, 0), App.Vector(-17.303573, 145.805705, 0)),
    Part.LineSegment(App.Vector(-17.303573, 145.805705, 0), App.Vector(-14.289524, 148.819754, 0)),
    Part.LineSegment(App.Vector(-14.289524, 148.819754, 0), App.Vector(-13.881276, 149.228002, 0)),
    Part.ArcOfCircle(Part.Circle(App.Vector(-15.578332, 150.925058, 0), App.Vector(0, 0, 1), 2.4), math.radians(-45), math.radians(15)),
    Part.LineSegment(App.Vector(-13.26011, 151.546224, 0), App.Vector(-13.409539, 152.103902, 0)),
    Part.LineSegment(App.Vector(-13.409539, 152.103902, 0), App.Vector(-15.791402, 160.993132, 0)),
    Part.LineSegment(App.Vector(-15.791402, 160.993132, 0), App.Vector(-12.891709, 165.571348, 0)),
    Part.ArcOfCircle(Part.Circle(App.Vector(-40.987875, 263.521414, 0), App.Vector(0, 0, 1), 101.9), math.radians(-73.9949), math.radians(-46.989624)),
    Part.LineSegment(App.Vector(28.521253, 189.009058, 0), App.Vector(34.263512, 189.145817, 0)),
    Part.LineSegment(App.Vector(34.263512, 189.145817, 0), App.Vector(48.149508, 175.90586, 0)),
    Part.LineSegment(App.Vector(48.149508, 175.90586, 0), App.Vector(48.149508, 171.520669, 0)),
    Part.ArcOfCircle(Part.Circle(App.Vector(-40.987875, 263.521414, 0), App.Vector(0, 0, 1), 128.1), math.radians(-50.099268), math.radians(-45.905634)),
    Part.ArcOfCircle(Part.Circle(App.Vector(-40.987985, 263.521546, 0), App.Vector(0, 0, 1), 128.100172), math.radians(-50.304157), math.radians(-50.099268)),
    Part.ArcOfCircle(Part.Circle(App.Vector(42.364041, 163.108725, 0), App.Vector(0, 0, 1), 2.4), math.radians(129.695843), math.radians(180)),
    Part.LineSegment(App.Vector(39.964041, 163.108725, 0), App.Vector(39.964041, 82.459868, 0)),
    Part.LineSegment(App.Vector(39.964041, 82.459868, 0), App.Vector(-15.028852, 82.459868, 0)),
    Part.ArcOfCircle(Part.Circle(App.Vector(-15.028852, 80.059868, 0), App.Vector(0, 0, 1), 2.4), math.radians(90), math.radians(135)),
    Part.LineSegment(App.Vector(-16.725908, 81.756924, 0), App.Vector(-23.022965, 75.459868, 0)),
    Part.LineSegment(App.Vector(-23.022965, 75.459868, 0), App.Vector(-43.448953, 75.459868, 0)),
    Part.LineSegment(App.Vector(-43.448953, 75.459868, 0), App.Vector(-46.503116, 78.514031, 0)),
    Part.LineSegment(App.Vector(-46.503116, 78.514031, 0), App.Vector(-46.79601, 78.806924, 0)),
    Part.ArcOfCircle(Part.Circle(App.Vector(-48.493066, 77.109868, 0), App.Vector(0, 0, 1), 2.4), math.radians(45), math.radians(90)),
    Part.LineSegment(App.Vector(-48.493066, 79.509868, 0), App.Vector(-61.385959, 79.509868, 0)),
    Part.LineSegment(App.Vector(-61.385959, 79.509868, 0), App.Vector(-61.385959, 86.109868, 0)),
    Part.ArcOfCircle(Part.Circle(App.Vector(-63.785959, 86.109868, 0), App.Vector(0, 0, 1), 2.4), math.radians(0), math.radians(90)),
    Part.LineSegment(App.Vector(-63.785959, 88.509868, 0), App.Vector(-80.335959, 88.509868, 0)),
], False)
sketch10.addConstraint([
    Sketcher.Constraint("Coincident", 0, 1, 1, 1),
    Sketcher.Constraint("Coincident", 1, 2, 2, 1),
    Sketcher.Constraint("Coincident", 2, 2, 3, 1),
    Sketcher.Constraint("Coincident", 3, 2, 4, 2),
    Sketcher.Constraint("Coincident", 4, 1, 5, 1),
    Sketcher.Constraint("Coincident", 5, 2, 6, 1),
    Sketcher.Constraint("Coincident", 6, 2, 7, 2),
    Sketcher.Constraint("Coincident", 7, 1, 8, 1),
    Sketcher.Constraint("Coincident", 8, 2, 9, 1),
    Sketcher.Constraint("Coincident", 9, 2, 10, 1),
    Sketcher.Constraint("Coincident", 10, 2, 11, 2),
    Sketcher.Constraint("Coincident", 11, 1, 12, 1),
    Sketcher.Constraint("Coincident", 12, 2, 13, 1),
    Sketcher.Constraint("Coincident", 13, 2, 14, 2),
    Sketcher.Constraint("Coincident", 14, 1, 15, 1),
    Sketcher.Constraint("Coincident", 15, 2, 16, 1),
    Sketcher.Constraint("Coincident", 16, 2, 17, 1),
    Sketcher.Constraint("Coincident", 17, 2, 18, 1),
    Sketcher.Constraint("Coincident", 18, 2, 19, 2),
    Sketcher.Constraint("Coincident", 19, 1, 20, 1),
    Sketcher.Constraint("Coincident", 20, 2, 21, 1),
    Sketcher.Constraint("Coincident", 21, 2, 22, 2),
    Sketcher.Constraint("Coincident", 22, 1, 23, 1),
    Sketcher.Constraint("Coincident", 23, 2, 0, 2),
    Sketcher.Constraint("Coincident", 24, 2, 25, 1),
    Sketcher.Constraint("Coincident", 25, 2, 26, 1),
    Sketcher.Constraint("Coincident", 26, 2, 27, 1),
    Sketcher.Constraint("Coincident", 27, 2, 28, 1),
    Sketcher.Constraint("Coincident", 28, 2, 29, 1),
    Sketcher.Constraint("Coincident", 29, 2, 30, 1),
    Sketcher.Constraint("Coincident", 30, 2, 31, 1),
    Sketcher.Constraint("Coincident", 31, 2, 32, 1),
    Sketcher.Constraint("Coincident", 32, 2, 33, 1),
    Sketcher.Constraint("Coincident", 33, 2, 34, 1),
    Sketcher.Constraint("Coincident", 34, 2, 35, 1),
    Sketcher.Constraint("Coincident", 35, 2, 36, 1),
    Sketcher.Constraint("Coincident", 36, 2, 37, 1),
    Sketcher.Constraint("Coincident", 37, 2, 38, 2),
    Sketcher.Constraint("Coincident", 38, 1, 39, 2),
    Sketcher.Constraint("Coincident", 39, 1, 40, 1),
    Sketcher.Constraint("Coincident", 40, 2, 41, 1),
    Sketcher.Constraint("Coincident", 41, 2, 42, 1),
    Sketcher.Constraint("Coincident", 42, 2, 43, 1),
    Sketcher.Constraint("Coincident", 43, 2, 44, 1),
    Sketcher.Constraint("Coincident", 44, 2, 45, 1),
    Sketcher.Constraint("Coincident", 45, 2, 46, 1),
    Sketcher.Constraint("Coincident", 46, 2, 47, 1),
    Sketcher.Constraint("Coincident", 47, 2, 48, 1),
    Sketcher.Constraint("Coincident", 48, 2, 49, 1),
    Sketcher.Constraint("Coincident", 49, 2, 50, 1),
    Sketcher.Constraint("Coincident", 50, 2, 51, 1),
    Sketcher.Constraint("Coincident", 51, 2, 52, 1),
    Sketcher.Constraint("Coincident", 52, 2, 24, 1),
    Sketcher.Constraint("Horizontal", 1),
    Sketcher.Constraint("Vertical", 2),
    Sketcher.Constraint("Horizontal", 3),
    Sketcher.Constraint("Vertical", 5),
    Sketcher.Constraint("Horizontal", 6),
    Sketcher.Constraint("Horizontal", 9),
    Sketcher.Constraint("Horizontal", 12),
    Sketcher.Constraint("Vertical", 13),
    Sketcher.Constraint("Vertical", 16),
    Sketcher.Constraint("Vertical", 24),
    Sketcher.Constraint("Horizontal", 25),
    Sketcher.Constraint("Vertical", 37),
    Sketcher.Constraint("Vertical", 41),
    Sketcher.Constraint("Horizontal", 42),
    Sketcher.Constraint("Horizontal", 45),
    Sketcher.Constraint("Horizontal", 49),
    Sketcher.Constraint("Vertical", 50),
    Sketcher.Constraint("Horizontal", 52),
    Sketcher.Constraint("Coincident", 19, 3, 15, 3),
    Sketcher.Constraint("Coincident", 34, 3, 15, 3),
    Sketcher.Constraint("Coincident", 38, 3, 15, 3),
    Sketcher.Constraint("Radius", 0, 3.2),
    Sketcher.Constraint("Radius", 4, 3.2),
    Sketcher.Constraint("Radius", 7, 3.2),
    Sketcher.Constraint("Radius", 11, 3.2),
    Sketcher.Constraint("Radius", 14, 3.2),
    Sketcher.Constraint("Radius", 15, 128.299999),
    Sketcher.Constraint("Radius", 19, 101.7),
    Sketcher.Constraint("Radius", 22, 3.2),
    Sketcher.Constraint("Radius", 26, 2.4),
    Sketcher.Constraint("Radius", 30, 2.4),
    Sketcher.Constraint("Radius", 34, 101.9),
    Sketcher.Constraint("Radius", 38, 128.1),
    Sketcher.Constraint("Radius", 40, 2.4),
    Sketcher.Constraint("Radius", 43, 2.4),
    Sketcher.Constraint("Radius", 48, 2.4),
    Sketcher.Constraint("Radius", 51, 2.4),
    Sketcher.Constraint("DistanceY", 2, 2, 2, 1, 56.7),
    Sketcher.Constraint("DistanceY", 5, 2, 5, 1, 5.8),
    Sketcher.Constraint("DistanceY", 24, 1, 24, 2, 56.3),
    Sketcher.Constraint("DistanceY", 50, 1, 50, 2, 6.6),
    Sketcher.Constraint("DistanceX", 3, 1, 3, 2, 15.75),
    Sketcher.Constraint("DistanceX", 52, 2, 52, 1, 16.55),
    Sketcher.Constraint("Radius", 39, 128.100172),
    Sketcher.Constraint("DistanceY", 16, 1, 16, 2, 4.5555),
    Sketcher.Constraint("DistanceX", 6, 1, 6, 2, 12.67868),
    Sketcher.Constraint("DistanceX", 12, 1, 12, 2, 54.77868),
    Sketcher.Constraint("DistanceX", 45, 2, 45, 1, 20.425988),
    Sketcher.Constraint("DistanceY", 37, 2, 37, 1, 4.385191),
    Sketcher.Constraint("DistanceY", -1, 1, 31, 2, 152.103902),
    Sketcher.Constraint("DistanceX", 32, 2, -1, 1, 15.791402),
    Sketcher.Constraint("Distance", 8, 4.402082),
    Sketcher.Constraint("Distance", 10, 8.574012),
    Sketcher.Constraint("Distance", 23, 4.262509),
    Sketcher.Constraint("Distance", 28, 4.262509),
    Sketcher.Constraint("Distance", 29, 0.57735),
    Sketcher.Constraint("Distance", 31, 0.57735),
    Sketcher.Constraint("Distance", 32, 9.202809),
    Sketcher.Constraint("Distance", 33, 5.419251),
    Sketcher.Constraint("Distance", 46, 4.319239),
    Sketcher.Constraint("DistanceX", 1, 2, 1, 1, 60.828223),
    Sketcher.Constraint("DistanceX", 9, 1, 9, 2, 20.591674),
    Sketcher.Constraint("DistanceX", 25, 1, 25, 2, 61.042437),
    Sketcher.Constraint("DistanceX", 42, 2, 42, 1, 54.992893),
    Sketcher.Constraint("DistanceX", 49, 2, 49, 1, 12.892893),
    Sketcher.Constraint("DistanceY", 13, 1, 13, 2, 80.380406),
    Sketcher.Constraint("DistanceY", 41, 2, 41, 1, 80.648857),
    Sketcher.Constraint("DistanceY", -1, 1, 0, 3, 148.209868),
    Sketcher.Constraint("DistanceX", 4, 3, -1, 1, 64.785959),
    Sketcher.Constraint("DistanceX", 7, 3, -1, 1, 48.907279),
    Sketcher.Constraint("DistanceY", -1, 1, 7, 3, 76.109868),
    Sketcher.Constraint("DistanceX", 11, 3, -1, 1, 14.614639),
    Sketcher.Constraint("DistanceY", -1, 1, 11, 3, 79.059868),
    Sketcher.Constraint("DistanceX", -1, 1, 14, 3, 43.364041),
    Sketcher.Constraint("DistanceY", -1, 1, 26, 3, 147.209868),
    Sketcher.Constraint("DistanceY", -1, 1, 30, 3, 150.925058),
    Sketcher.Constraint("DistanceX", -1, 1, 40, 3, 42.364041),
    Sketcher.Constraint("DistanceY", -1, 1, 43, 3, 80.059868),
    Sketcher.Constraint("DistanceY", -1, 1, 48, 3, 77.109868),
    Sketcher.Constraint("DistanceX", 51, 3, -1, 1, 63.785959),
    Sketcher.Constraint("DistanceX", 1, 2, -1, 1, 80.535959),
    Sketcher.Constraint("DistanceY", -1, 1, 7, 1, 78.37261),
    Sketcher.Constraint("DistanceY", -1, 1, 8, 2, 75.259868),
    Sketcher.Constraint("DistanceX", -1, 1, 14, 1, 41.311371),
    Sketcher.Constraint("DistanceX", -1, 1, 17, 2, 34.341569),
    Sketcher.Constraint("DistanceY", -1, 1, 18, 2, 189.207189),
    Sketcher.Constraint("DistanceY", -1, 1, 19, 1, 165.742659),
    Sketcher.Constraint("DistanceX", 20, 2, -1, 1, 16.007282),
    Sketcher.Constraint("DistanceX", 24, 2, -1, 1, 80.335959),
    Sketcher.Constraint("DistanceY", -1, 1, 26, 2, 145.512812),
    Sketcher.Constraint("DistanceX", 30, 2, -1, 1, 13.26011),
    Sketcher.Constraint("DistanceX", 31, 2, -1, 1, 13.409539),
    Sketcher.Constraint("DistanceX", 33, 2, -1, 1, 12.891709),
    Sketcher.Constraint("DistanceX", -1, 1, 35, 2, 34.263512),
    Sketcher.Constraint("DistanceY", -1, 1, 36, 2, 175.90586),
    Sketcher.Constraint("DistanceX", -1, 1, 38, 1, 41.183079),
    Sketcher.Constraint("DistanceY", -1, 1, 38, 1, 165.248608),
    Sketcher.Constraint("DistanceX", 43, 2, -1, 1, 16.725908),
    Sketcher.Constraint("DistanceY", -1, 1, 44, 2, 75.459868),
    Sketcher.Constraint("DistanceY", -1, 1, 46, 2, 78.514031),
    Sketcher.Constraint("DistanceX", 47, 2, -1, 1, 46.79601),
    Sketcher.Constraint("Distance", 17, 19.354873),
    Sketcher.Constraint("Distance", 20, 5.583046),
    Sketcher.Constraint("Distance", 21, 9.290496),
    Sketcher.Constraint("Distance", 27, 0.414214),
    Sketcher.Constraint("Distance", 35, 5.743887),
    Sketcher.Constraint("Distance", 36, 19.186384),
    Sketcher.Constraint("Distance", 44, 8.905382),
    Sketcher.Constraint("Distance", 47, 0.414214),
    Sketcher.Constraint("DistanceX", 0, 3, -1, 1, 19.707736),
    Sketcher.Constraint("DistanceX", 22, 3, -1, 1, 16.693687),
    Sketcher.Constraint("DistanceY", -1, 1, 22, 3, 151.223917),
    Sketcher.Constraint("DistanceX", 26, 3, -1, 1, 19.293522),
    Sketcher.Constraint("DistanceX", 39, 3, -1, 1, 40.987985),
    Sketcher.Constraint("DistanceX", 43, 3, -1, 1, 15.028852),
    Sketcher.Constraint("DistanceX", -1, 1, 15, 2, 48.349508),
    Sketcher.Constraint("DistanceX", 22, 1, -1, 1, 14.430946),
    Sketcher.Constraint("DistanceX", 27, 2, -1, 1, 17.303573),
    Sketcher.Constraint("DistanceX", 28, 2, -1, 1, 14.289524),
    Sketcher.Constraint("DistanceX", -1, 1, 39, 1, 40.831132),
])
pocket2 = body8.newObject("PartDesign::Pocket", "Pocket001")
pocket2.Profile = sketch10
pocket2.Length = 206.778654
doc.recompute()

fillet = body8.newObject("PartDesign::Fillet", "Fillet")
fillet.Base = (pocket2, edges_at(pocket2, [
    (-80.336, 9.247, 144.81),
    (-80.336, 9.247, 88.51),
    (-61.386, 9.247, 79.51),
    (-43.449, 9.247, 75.46),
    (-23.023, 9.247, 75.46),
    (39.964, 9.247, 82.46),
    (48.15, 9.247, 171.521),
    (48.15, 9.247, 175.906),
    (34.264, 9.247, 189.146),
    (28.521, 9.247, 189.009),
    (-12.892, 9.247, 165.571),
    (-15.791, 9.247, 160.993),
]))
fillet.Radius = 0.4
body9 = doc.addObject("PartDesign::Body", "Body008")
body9.AllowCompound = True

sketch11 = body9.newObject("Sketcher::SketchObject", "Sketch010")
sketch11.AttachmentSupport = (doc.getObject("XZ_Plane008"), [""])
sketch11.MapMode = "FlatFace"
sketch11.AttachmentOffset = App.Placement(App.Vector(0, 0, -8.497151), App.Rotation())
sketch11.addGeometry([
    Part.Circle(App.Vector(-61.7, 138.7, 0), App.Vector(0, 0, 1), 1),
    Part.Circle(App.Vector(-61.7, 138.7, 0), App.Vector(0, 0, 1), 0.6),
    Part.Circle(App.Vector(-8.4, 142.8, 0), App.Vector(0, 0, 1), 1),
    Part.Circle(App.Vector(-8.4, 142.8, 0), App.Vector(0, 0, 1), 0.6),
    Part.Circle(App.Vector(-33.2, 113.1, 0), App.Vector(0, 0, 1), 1),
    Part.Circle(App.Vector(-33.2, 113.1, 0), App.Vector(0, 0, 1), 0.6),
    Part.Circle(App.Vector(-61.8, 93.6, 0), App.Vector(0, 0, 1), 1),
    Part.Circle(App.Vector(-61.8, 93.6, 0), App.Vector(0, 0, 1), 0.6),
    Part.Circle(App.Vector(-23.7, 87.6, 0), App.Vector(0, 0, 1), 1),
    Part.Circle(App.Vector(-23.7, 87.6, 0), App.Vector(0, 0, 1), 0.6),
    Part.Circle(App.Vector(8.9, 103.8, 0), App.Vector(0, 0, 1), 1),
    Part.Circle(App.Vector(8.9, 103.8, 0), App.Vector(0, 0, 1), 0.6),
    Part.Circle(App.Vector(27.9, 167.9, 0), App.Vector(0, 0, 1), 1),
    Part.Circle(App.Vector(27.9, 167.9, 0), App.Vector(0, 0, 1), 0.6),
], False)
sketch11.addConstraint([
    Sketcher.Constraint("Coincident", 1, 3, 0, 3),
    Sketcher.Constraint("Coincident", 3, 3, 2, 3),
    Sketcher.Constraint("Coincident", 5, 3, 4, 3),
    Sketcher.Constraint("Coincident", 7, 3, 6, 3),
    Sketcher.Constraint("Coincident", 9, 3, 8, 3),
    Sketcher.Constraint("Coincident", 11, 3, 10, 3),
    Sketcher.Constraint("Coincident", 13, 3, 12, 3),
    Sketcher.Constraint("Equal", 0, 2),
    Sketcher.Constraint("Equal", 1, 3),
    Sketcher.Constraint("Equal", 2, 4),
    Sketcher.Constraint("Equal", 3, 5),
    Sketcher.Constraint("Equal", 4, 6),
    Sketcher.Constraint("Equal", 5, 7),
    Sketcher.Constraint("Equal", 6, 8),
    Sketcher.Constraint("Equal", 7, 9),
    Sketcher.Constraint("Equal", 8, 10),
    Sketcher.Constraint("Equal", 9, 11),
    Sketcher.Constraint("Equal", 10, 12),
    Sketcher.Constraint("Equal", 11, 13),
    Sketcher.Constraint("Diameter", 0, 2.0),
    Sketcher.Constraint("Diameter", 1, 1.2),
    Sketcher.Constraint("DistanceX", 0, 3, 4, 3, 28.5),
    Sketcher.Constraint("DistanceY", 6, 3, 0, 3, 45.1),
    Sketcher.Constraint("DistanceX", 6, 3, 8, 3, 38.1),
    Sketcher.Constraint("DistanceX", 4, 3, 10, 3, 42.1),
    Sketcher.Constraint("DistanceY", 10, 3, 4, 3, 9.3),
    Sketcher.Constraint("DistanceY", 8, 3, 6, 3, 6.05),
    Sketcher.Constraint("DistanceY", -1, 1, 12, 3, 167.853002),
    Sketcher.Constraint("DistanceY", 4, 3, 0, 3, 25.575),
    Sketcher.Constraint("DistanceX", 6, 3, 4, 3, 28.575),
    Sketcher.Constraint("DistanceX", 10, 3, 12, 3, 19.013799),
    Sketcher.Constraint("DistanceX", 0, 3, -1, 1, 61.735959),
    Sketcher.Constraint("DistanceY", -1, 1, 0, 3, 138.709868),
    Sketcher.Constraint("DistanceX", 2, 3, -1, 1, 8.400568),
    Sketcher.Constraint("DistanceY", 2, 3, 12, 3, 25.057388),
])
pad9 = body9.newObject("PartDesign::Pad", "Pad008")
pad9.Profile = sketch11
pad9.Length = 206.778654
pad9.Reversed = True
doc.recompute()

body10 = doc.addObject("PartDesign::Body", "Body009")
body10.BaseFeature = body9
boolean = body.newObject("PartDesign::Boolean", "Boolean")
boolean.Type = "Cut"
boolean.addObjects([body10])
doc.recompute()

body11 = doc.addObject("PartDesign::Body", "Body010")
body11.BaseFeature = body9
boolean2 = body2.newObject("PartDesign::Boolean", "Boolean001")
boolean2.Type = "Cut"
boolean2.addObjects([body11])
doc.recompute()

body12 = doc.addObject("PartDesign::Body", "Body011")
body12.BaseFeature = body9
boolean3 = body3.newObject("PartDesign::Boolean", "Boolean002")
boolean3.Type = "Cut"
boolean3.addObjects([body12])
doc.recompute()

body13 = doc.addObject("PartDesign::Body", "Body012")
body13.BaseFeature = body9
boolean4 = body4.newObject("PartDesign::Boolean", "Boolean003")
boolean4.Type = "Cut"
boolean4.addObjects([body13])
doc.recompute()

body14 = doc.addObject("PartDesign::Body", "Body013")
body14.BaseFeature = body9
boolean5 = body5.newObject("PartDesign::Boolean", "Boolean004")
boolean5.Type = "Cut"
boolean5.addObjects([body14])
doc.recompute()

body15 = doc.addObject("PartDesign::Body", "Body014")
body15.BaseFeature = body9
boolean6 = body6.newObject("PartDesign::Boolean", "Boolean005")
boolean6.Type = "Cut"
boolean6.addObjects([body15])
doc.recompute()

boolean7 = body7.newObject("PartDesign::Boolean", "Boolean006")
boolean7.Type = "Cut"
boolean7.addObjects([body9])

doc.recompute()
